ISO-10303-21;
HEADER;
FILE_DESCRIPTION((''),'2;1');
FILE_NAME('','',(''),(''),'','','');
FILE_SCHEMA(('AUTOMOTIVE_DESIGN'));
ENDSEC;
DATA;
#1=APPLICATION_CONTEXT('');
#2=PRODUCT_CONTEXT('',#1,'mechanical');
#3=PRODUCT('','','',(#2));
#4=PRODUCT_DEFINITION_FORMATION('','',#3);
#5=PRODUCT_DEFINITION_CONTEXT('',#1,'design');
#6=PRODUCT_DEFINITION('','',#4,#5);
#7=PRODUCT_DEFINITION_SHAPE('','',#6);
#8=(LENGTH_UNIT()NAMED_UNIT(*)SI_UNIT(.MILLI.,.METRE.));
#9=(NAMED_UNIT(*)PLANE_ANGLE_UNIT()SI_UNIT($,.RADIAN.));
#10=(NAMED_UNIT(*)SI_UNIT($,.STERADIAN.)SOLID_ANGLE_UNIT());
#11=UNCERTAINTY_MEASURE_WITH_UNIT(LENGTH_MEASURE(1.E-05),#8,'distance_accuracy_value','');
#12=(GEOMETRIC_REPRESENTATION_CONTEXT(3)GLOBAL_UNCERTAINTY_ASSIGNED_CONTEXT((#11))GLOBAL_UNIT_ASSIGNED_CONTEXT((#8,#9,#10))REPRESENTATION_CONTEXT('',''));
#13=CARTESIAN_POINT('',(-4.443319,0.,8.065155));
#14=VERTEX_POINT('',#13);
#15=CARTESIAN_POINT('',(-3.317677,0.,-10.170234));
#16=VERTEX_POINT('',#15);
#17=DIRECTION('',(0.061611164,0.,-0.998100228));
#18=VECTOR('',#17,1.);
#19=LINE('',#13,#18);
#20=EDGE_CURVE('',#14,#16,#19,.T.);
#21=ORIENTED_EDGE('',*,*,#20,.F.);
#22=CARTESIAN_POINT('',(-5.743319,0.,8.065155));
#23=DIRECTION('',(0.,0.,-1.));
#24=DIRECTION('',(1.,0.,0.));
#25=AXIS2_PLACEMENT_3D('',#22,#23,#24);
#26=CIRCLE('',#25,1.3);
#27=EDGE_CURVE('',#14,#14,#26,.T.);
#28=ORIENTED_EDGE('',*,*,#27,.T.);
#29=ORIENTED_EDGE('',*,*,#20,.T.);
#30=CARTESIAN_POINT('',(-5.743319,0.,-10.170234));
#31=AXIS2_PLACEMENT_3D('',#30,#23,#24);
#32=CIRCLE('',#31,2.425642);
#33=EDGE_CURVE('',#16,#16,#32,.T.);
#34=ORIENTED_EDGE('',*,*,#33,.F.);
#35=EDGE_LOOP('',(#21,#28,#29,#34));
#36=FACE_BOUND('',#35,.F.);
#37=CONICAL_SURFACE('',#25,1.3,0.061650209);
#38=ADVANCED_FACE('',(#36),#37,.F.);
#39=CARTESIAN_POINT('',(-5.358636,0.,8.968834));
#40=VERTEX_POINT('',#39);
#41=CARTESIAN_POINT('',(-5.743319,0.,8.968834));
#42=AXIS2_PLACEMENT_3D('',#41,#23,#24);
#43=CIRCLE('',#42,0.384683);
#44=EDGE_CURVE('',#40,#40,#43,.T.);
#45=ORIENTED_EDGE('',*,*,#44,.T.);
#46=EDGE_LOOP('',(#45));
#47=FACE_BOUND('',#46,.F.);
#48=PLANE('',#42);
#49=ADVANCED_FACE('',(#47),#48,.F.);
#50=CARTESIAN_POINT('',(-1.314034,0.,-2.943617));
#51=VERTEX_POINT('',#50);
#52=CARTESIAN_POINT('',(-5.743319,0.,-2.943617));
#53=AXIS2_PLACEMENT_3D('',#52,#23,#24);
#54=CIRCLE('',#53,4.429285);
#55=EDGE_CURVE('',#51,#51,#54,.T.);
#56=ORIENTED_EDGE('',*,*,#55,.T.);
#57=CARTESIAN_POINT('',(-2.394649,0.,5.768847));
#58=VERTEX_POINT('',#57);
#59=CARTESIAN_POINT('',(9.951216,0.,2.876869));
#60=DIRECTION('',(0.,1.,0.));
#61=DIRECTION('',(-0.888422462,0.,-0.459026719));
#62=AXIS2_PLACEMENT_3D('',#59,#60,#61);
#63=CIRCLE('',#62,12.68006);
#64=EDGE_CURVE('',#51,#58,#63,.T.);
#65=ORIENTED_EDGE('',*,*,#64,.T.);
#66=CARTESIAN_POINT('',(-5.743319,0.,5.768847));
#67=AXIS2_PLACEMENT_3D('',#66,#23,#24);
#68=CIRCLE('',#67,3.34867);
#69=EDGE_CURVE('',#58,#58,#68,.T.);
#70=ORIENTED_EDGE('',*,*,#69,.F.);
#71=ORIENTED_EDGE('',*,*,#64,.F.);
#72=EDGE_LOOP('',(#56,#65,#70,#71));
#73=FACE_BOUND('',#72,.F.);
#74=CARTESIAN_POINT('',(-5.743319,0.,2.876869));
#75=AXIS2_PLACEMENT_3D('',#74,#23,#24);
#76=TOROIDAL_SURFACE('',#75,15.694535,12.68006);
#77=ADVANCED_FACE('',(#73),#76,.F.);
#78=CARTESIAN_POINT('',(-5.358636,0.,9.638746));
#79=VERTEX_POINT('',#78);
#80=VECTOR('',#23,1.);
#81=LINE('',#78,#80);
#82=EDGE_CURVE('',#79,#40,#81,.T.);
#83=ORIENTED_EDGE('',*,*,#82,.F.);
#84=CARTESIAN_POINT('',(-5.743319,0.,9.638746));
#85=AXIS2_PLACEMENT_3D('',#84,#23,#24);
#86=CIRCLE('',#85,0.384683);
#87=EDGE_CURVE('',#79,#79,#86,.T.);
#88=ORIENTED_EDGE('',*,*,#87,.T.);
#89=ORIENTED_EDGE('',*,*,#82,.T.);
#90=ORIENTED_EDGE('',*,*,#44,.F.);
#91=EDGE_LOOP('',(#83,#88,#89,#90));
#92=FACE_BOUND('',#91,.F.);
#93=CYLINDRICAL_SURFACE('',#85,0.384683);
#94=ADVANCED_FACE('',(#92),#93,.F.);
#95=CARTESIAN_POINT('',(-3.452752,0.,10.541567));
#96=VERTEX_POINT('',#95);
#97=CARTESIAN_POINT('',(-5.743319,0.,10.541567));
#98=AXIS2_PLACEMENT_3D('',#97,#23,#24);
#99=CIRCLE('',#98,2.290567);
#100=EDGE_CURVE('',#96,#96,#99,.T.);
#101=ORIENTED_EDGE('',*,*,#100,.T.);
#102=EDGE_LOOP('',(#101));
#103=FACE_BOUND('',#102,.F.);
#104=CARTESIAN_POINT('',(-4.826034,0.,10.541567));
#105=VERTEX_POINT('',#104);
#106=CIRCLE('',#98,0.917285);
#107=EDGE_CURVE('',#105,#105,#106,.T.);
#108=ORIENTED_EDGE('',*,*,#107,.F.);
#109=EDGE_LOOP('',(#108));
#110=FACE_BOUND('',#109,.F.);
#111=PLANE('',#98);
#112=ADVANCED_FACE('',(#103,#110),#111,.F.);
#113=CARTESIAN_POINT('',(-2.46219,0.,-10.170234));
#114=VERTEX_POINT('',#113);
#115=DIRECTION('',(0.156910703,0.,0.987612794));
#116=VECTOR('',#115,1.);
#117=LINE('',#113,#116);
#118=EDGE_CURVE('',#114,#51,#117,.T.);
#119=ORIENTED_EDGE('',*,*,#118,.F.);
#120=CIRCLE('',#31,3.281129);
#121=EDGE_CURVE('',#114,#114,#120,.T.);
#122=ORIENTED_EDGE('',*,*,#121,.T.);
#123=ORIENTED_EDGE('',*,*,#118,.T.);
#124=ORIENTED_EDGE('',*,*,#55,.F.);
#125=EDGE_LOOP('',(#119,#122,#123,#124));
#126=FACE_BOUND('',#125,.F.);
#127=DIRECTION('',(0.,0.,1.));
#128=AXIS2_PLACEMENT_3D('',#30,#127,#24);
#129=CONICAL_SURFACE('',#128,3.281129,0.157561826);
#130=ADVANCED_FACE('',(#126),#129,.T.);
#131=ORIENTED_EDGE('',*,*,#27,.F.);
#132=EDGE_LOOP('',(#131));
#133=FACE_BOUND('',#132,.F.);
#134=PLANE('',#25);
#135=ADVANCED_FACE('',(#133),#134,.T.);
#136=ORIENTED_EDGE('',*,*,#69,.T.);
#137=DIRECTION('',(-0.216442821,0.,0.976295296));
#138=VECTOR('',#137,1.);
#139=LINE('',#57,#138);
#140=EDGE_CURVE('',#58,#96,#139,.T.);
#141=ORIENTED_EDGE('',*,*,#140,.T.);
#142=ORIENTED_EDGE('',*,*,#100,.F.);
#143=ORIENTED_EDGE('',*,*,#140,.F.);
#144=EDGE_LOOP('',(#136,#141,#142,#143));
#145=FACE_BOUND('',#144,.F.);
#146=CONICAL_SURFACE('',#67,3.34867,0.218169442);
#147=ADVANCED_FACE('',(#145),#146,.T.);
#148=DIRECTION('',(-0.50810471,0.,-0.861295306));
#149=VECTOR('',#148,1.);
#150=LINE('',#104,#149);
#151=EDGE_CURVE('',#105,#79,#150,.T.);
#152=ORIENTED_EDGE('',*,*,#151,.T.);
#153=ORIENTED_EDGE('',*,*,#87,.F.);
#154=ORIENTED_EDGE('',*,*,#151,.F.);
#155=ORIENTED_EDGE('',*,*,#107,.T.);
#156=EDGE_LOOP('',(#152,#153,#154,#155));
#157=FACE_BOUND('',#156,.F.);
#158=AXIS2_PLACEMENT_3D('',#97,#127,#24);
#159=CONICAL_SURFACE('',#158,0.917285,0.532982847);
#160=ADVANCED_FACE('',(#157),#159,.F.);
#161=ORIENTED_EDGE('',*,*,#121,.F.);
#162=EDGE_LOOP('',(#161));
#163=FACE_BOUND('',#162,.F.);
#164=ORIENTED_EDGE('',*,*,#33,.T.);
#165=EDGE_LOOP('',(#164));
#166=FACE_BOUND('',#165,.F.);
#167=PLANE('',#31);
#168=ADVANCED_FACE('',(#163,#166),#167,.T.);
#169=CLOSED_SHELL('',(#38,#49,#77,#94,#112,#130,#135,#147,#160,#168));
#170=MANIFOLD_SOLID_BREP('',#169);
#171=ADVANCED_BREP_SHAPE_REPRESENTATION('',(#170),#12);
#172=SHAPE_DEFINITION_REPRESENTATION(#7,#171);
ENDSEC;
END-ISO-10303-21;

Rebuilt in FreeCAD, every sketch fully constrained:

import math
import FreeCAD as App
import Part
import Sketcher
Q = App.Units.Quantity

doc = App.newDocument("Part")
body = doc.addObject("PartDesign::Body", "Body")

# Sketch on XZ plane
sketch1 = body.newObject("Sketcher::SketchObject", "Sketch")
sketch1.AttachmentSupport = (doc.getObject("XZ_Plane"), [""])
sketch1.MapMode = "FlatFace"
sketch1.addGeometry([
    Part.LineSegment(App.Vector(-3.452752, 10.541567, 0), App.Vector(-4.826034, 10.541567, 0)),  # 0
    Part.LineSegment(App.Vector(-4.826034, 10.541567, 0), App.Vector(-5.358636, 9.638746, 0)),  # 1
    Part.LineSegment(App.Vector(-5.358636, 9.638746, 0), App.Vector(-5.358636, 8.968834, 0)),  # 2
    Part.LineSegment(App.Vector(-5.358636, 8.968834, 0), App.Vector(-5.743319, 8.968834, 0)),  # 3
    Part.LineSegment(App.Vector(-5.743319, 8.968834, 0), App.Vector(-5.743319, 8.065155, 0)),  # 4
    Part.LineSegment(App.Vector(-5.743319, 8.065155, 0), App.Vector(-4.443319, 8.065155, 0)),  # 5
    Part.LineSegment(App.Vector(-4.443319, 8.065155, 0), App.Vector(-3.317677, -10.170234, 0)),  # 6
    Part.LineSegment(App.Vector(-3.317677, -10.170234, 0), App.Vector(-2.46219, -10.170234, 0)),  # 7
    Part.LineSegment(App.Vector(-2.46219, -10.170234, 0), App.Vector(-1.314034, -2.943617, 0)),  # 8
    Part.ArcOfCircle(Part.Circle(App.Vector(9.951216, 2.876869, 0), App.Vector(0, 0, 1), 12.68006), math.radians(166.816359), math.radians(207.324321)),  # 9
    Part.LineSegment(App.Vector(-2.394649, 5.768847, 0), App.Vector(-3.452752, 10.541567, 0)),  # 10
], False)
sketch1.addGeometry(Part.LineSegment(App.Vector(-5.743319, 10.541567, 0), App.Vector(-5.743319, -10.170234, 0)), True)  # axis
sketch1.addConstraint([
    Sketcher.Constraint("Coincident", 0, 2, 1, 1),
    Sketcher.Constraint("Coincident", 1, 2, 2, 1),
    Sketcher.Constraint("Coincident", 2, 2, 3, 1),
    Sketcher.Constraint("Coincident", 3, 2, 4, 1),
    Sketcher.Constraint("Coincident", 4, 2, 5, 1),
    Sketcher.Constraint("Coincident", 5, 2, 6, 1),
    Sketcher.Constraint("Coincident", 6, 2, 7, 1),
    Sketcher.Constraint("Coincident", 7, 2, 8, 1),
    Sketcher.Constraint("Coincident", 8, 2, 9, 2),
    Sketcher.Constraint("Coincident", 9, 1, 10, 1),
    Sketcher.Constraint("Coincident", 10, 2, 0, 1),
    Sketcher.Constraint("Horizontal", 0),
    Sketcher.Constraint("Vertical", 2),
    Sketcher.Constraint("Horizontal", 3),
    Sketcher.Constraint("Vertical", 4),
    Sketcher.Constraint("Horizontal", 5),
    Sketcher.Constraint("Horizontal", 7),
    Sketcher.Constraint("Vertical", 11),
    Sketcher.Constraint("Horizontal", 10, 2, 11, 1),
    Sketcher.Constraint("Horizontal", 7, 2, 11, 2),
    Sketcher.Constraint("Vertical", 4, 2, 11, 1),
    Sketcher.Constraint("DistanceX", 5, 1, 5, 2, Q("1.3 mm")),
    Sketcher.Constraint("Radius", 9, Q("12.68006 mm")),
    Sketcher.Constraint("DistanceY", 11, 2, 11, 1, Q("20.711801 mm")),
    Sketcher.Constraint("Distance", 6, Q("18.270098 mm")),
    Sketcher.Constraint("DistanceY", 4, 2, 4, 1, Q("0.903679 mm")),
    Sketcher.Constraint("DistanceX", 1, 2, 0, 2, Q("0.532602 mm")),
    Sketcher.Constraint("DistanceX", 2, 2, 8, 2, Q("4.044602 mm")),
    Sketcher.Constraint("DistanceY", 9, 1, 1, 2, Q("3.869899 mm")),
    Sketcher.Constraint("DistanceX", 0, 2, 0, 1, Q("1.373282 mm")),
    Sketcher.Constraint("DistanceX", 3, 2, 3, 1, Q("0.384683 mm")),
    Sketcher.Constraint("DistanceX", 7, 1, 7, 2, Q("0.855487 mm")),
    Sketcher.Constraint("DistanceY", 2, 2, 2, 1, Q("0.669912 mm")),
    Sketcher.Constraint("DistanceY", -1, 1, 9, 3, Q("2.876869 mm")),
    Sketcher.Constraint("DistanceX", 3, 2, -1, 1, Q("5.743319 mm")),
    Sketcher.Constraint("DistanceX", 7, 2, -1, 1, Q("2.46219 mm")),
    Sketcher.Constraint("DistanceX", 9, 1, -1, 1, Q("2.394649 mm")),
    Sketcher.Constraint("DistanceX", 0, 2, 9, 3, Q("14.77725 mm")),
])
revolution = body.newObject("PartDesign::Revolution", "Revolution")
revolution.Profile = sketch1
revolution.ReferenceAxis = (sketch1, ["Axis0"])
revolution.Angle = 360

doc.recompute()
